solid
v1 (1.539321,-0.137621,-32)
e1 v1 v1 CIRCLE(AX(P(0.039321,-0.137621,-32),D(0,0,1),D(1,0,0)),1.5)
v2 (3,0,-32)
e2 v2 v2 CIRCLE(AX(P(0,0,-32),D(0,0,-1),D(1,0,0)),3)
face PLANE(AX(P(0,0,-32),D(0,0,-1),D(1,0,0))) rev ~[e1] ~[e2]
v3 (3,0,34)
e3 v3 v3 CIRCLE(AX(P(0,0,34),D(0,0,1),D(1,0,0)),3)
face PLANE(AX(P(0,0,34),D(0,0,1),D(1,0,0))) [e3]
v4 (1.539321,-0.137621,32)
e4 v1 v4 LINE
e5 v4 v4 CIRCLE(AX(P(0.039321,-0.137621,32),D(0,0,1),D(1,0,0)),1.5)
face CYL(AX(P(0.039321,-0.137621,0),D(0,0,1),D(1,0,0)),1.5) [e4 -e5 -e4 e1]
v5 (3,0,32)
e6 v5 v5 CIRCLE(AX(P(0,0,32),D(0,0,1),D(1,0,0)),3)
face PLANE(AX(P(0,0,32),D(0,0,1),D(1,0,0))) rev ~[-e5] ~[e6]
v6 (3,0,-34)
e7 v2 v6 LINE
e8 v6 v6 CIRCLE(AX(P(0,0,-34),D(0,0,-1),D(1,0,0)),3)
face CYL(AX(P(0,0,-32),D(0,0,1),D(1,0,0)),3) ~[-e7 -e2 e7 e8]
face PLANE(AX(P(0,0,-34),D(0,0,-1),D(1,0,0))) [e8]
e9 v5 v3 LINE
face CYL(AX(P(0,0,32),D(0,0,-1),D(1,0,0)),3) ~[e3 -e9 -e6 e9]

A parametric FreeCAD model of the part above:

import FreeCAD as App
import Part
import Sketcher
from FreeCAD import Vector
Q = App.Units.Quantity

doc = App.newDocument("Part")
body = doc.addObject("PartDesign::Body", "Body")

# Sketch on XY plane
sketch1 = doc.addObject("Sketcher::SketchObject", "Sketch")
body.addObject(sketch1)
sketch1.AttachmentSupport = (doc.XY_Plane, [""])
sketch1.MapMode = "FlatFace"
sketch1.addGeometry(Part.Circle(Vector(0, -0.1, 0), Vector(0, 0, 1), 1.5), False)
sketch1.addConstraint(Sketcher.Constraint("Diameter", 0, Q("3 mm")))
sketch1.addConstraint(Sketcher.Constraint("DistanceX", -1, 1, 0, 3, Q("0.039321 mm")))
sketch1.addConstraint(Sketcher.Constraint("DistanceY", 0, 3, -1, 1, Q("0.137621 mm")))
pad1 = doc.addObject("PartDesign::Pad", "Pad")
body.addObject(pad1)
pad1.Profile = sketch1
pad1.Length = 64
pad1.Midplane = True

# Sketch on XY plane
sketch2 = doc.addObject("Sketcher::SketchObject", "Sketch001")
body.addObject(sketch2)
sketch2.AttachmentSupport = (doc.XY_Plane, [""])
sketch2.MapMode = "FlatFace"
sketch2.AttachmentOffset = App.Placement(Vector(0, 0, -32), App.Rotation())
sketch2.addGeometry(Part.Circle(Vector(0, 0, 0), Vector(0, 0, 1), 3), False)
sketch2.addConstraint(Sketcher.Constraint("Coincident", 0, 3, -1, 1))
sketch2.addConstraint(Sketcher.Constraint("Diameter", 0, Q("6 mm")))
pad2 = doc.addObject("PartDesign::Pad", "Pad001")
body.addObject(pad2)
pad2.Profile = sketch2
pad2.Length = 2
pad2.Reversed = True

# Sketch on XY plane
sketch3 = doc.addObject("Sketcher::SketchObject", "Sketch002")
body.addObject(sketch3)
sketch3.AttachmentSupport = (doc.XY_Plane, [""])
sketch3.MapMode = "FlatFace"
sketch3.AttachmentOffset = App.Placement(Vector(0, 0, 32), App.Rotation())
sketch3.addGeometry(Part.Circle(Vector(0, 0, 0), Vector(0, 0, 1), 3), False)
sketch3.addConstraint(Sketcher.Constraint("Coincident", 0, 3, -1, 1))
sketch3.addConstraint(Sketcher.Constraint("Diameter", 0, Q("6 mm")))
pad3 = doc.addObject("PartDesign::Pad", "Pad002")
body.addObject(pad3)
pad3.Profile = sketch3
pad3.Length = 2

doc.recompute()
